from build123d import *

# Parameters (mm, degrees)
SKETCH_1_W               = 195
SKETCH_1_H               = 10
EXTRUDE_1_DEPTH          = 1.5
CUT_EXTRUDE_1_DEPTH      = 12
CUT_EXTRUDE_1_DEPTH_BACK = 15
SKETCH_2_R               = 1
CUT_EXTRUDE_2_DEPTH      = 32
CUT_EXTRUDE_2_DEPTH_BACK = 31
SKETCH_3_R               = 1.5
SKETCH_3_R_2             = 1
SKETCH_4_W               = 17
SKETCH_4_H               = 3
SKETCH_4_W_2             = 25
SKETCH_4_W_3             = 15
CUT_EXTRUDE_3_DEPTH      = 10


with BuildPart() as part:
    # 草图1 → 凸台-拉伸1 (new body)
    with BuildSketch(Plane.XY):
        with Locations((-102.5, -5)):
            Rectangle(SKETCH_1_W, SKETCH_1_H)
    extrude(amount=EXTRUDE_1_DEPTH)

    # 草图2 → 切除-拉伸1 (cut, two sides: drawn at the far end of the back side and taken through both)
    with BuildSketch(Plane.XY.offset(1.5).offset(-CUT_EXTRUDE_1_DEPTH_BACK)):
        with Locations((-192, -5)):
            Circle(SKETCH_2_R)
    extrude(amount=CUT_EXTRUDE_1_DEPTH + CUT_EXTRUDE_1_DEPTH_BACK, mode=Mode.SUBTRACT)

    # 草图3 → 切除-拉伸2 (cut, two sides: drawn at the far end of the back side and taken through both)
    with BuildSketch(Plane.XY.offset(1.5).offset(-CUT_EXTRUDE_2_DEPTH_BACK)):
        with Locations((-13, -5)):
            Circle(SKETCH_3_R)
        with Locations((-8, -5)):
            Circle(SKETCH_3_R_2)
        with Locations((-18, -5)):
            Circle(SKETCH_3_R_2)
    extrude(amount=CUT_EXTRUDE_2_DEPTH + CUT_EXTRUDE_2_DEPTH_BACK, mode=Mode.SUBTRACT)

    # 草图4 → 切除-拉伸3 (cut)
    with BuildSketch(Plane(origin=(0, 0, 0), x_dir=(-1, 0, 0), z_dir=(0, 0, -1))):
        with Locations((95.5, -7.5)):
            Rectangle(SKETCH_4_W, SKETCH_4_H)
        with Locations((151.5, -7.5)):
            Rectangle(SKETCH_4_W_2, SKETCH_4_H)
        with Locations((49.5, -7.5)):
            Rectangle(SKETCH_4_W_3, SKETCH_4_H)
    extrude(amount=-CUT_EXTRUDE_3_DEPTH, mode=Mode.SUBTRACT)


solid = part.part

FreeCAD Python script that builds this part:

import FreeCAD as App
import Part
import Sketcher

V = App.Vector
Q = App.Units.Quantity

doc = App.newDocument("Part")
body = doc.addObject("PartDesign::Body", "Body")

# Sketch on XY plane
sketch1 = doc.addObject("Sketcher::SketchObject", "Sketch")
body.addObject(sketch1)
sketch1.AttachmentSupport = (doc.XY_Plane, [""])
sketch1.MapMode = "FlatFace"
sketch1.addGeometry(Part.LineSegment(V(-200, 0, 0), V(-200, -10, 0)), False)
sketch1.addGeometry(Part.LineSegment(V(-200, -10, 0), V(-5, -10, 0)), False)
sketch1.addGeometry(Part.LineSegment(V(-5, -10, 0), V(-5, 0, 0)), False)
sketch1.addGeometry(Part.LineSegment(V(-5, 0, 0), V(-200, 0, 0)), False)
sketch1.addConstraint(Sketcher.Constraint("Coincident", 0, 2, 1, 1))
sketch1.addConstraint(Sketcher.Constraint("Coincident", 1, 2, 2, 1))
sketch1.addConstraint(Sketcher.Constraint("Coincident", 2, 2, 3, 1))
sketch1.addConstraint(Sketcher.Constraint("Coincident", 3, 2, 0, 1))
sketch1.addConstraint(Sketcher.Constraint("Vertical", 0))
sketch1.addConstraint(Sketcher.Constraint("Horizontal", 1))
sketch1.addConstraint(Sketcher.Constraint("Vertical", 2))
sketch1.addConstraint(Sketcher.Constraint("Horizontal", 3))
sketch1.addConstraint(Sketcher.Constraint("PointOnObject", 2, 2, -1))
sketch1.addConstraint(Sketcher.Constraint("DistanceX", 1, 1, 1, 2, Q("195 mm")))
sketch1.addConstraint(Sketcher.Constraint("DistanceY", 0, 2, 0, 1, Q("10 mm")))
sketch1.addConstraint(Sketcher.Constraint("DistanceX", 0, 2, -1, 1, Q("200 mm")))
pad1 = doc.addObject("PartDesign::Pad", "Pad")
body.addObject(pad1)
pad1.Profile = sketch1
pad1.Length = 1.5

# Sketch on XY plane
sketch2 = doc.addObject("Sketcher::SketchObject", "Sketch001")
body.addObject(sketch2)
sketch2.AttachmentSupport = (doc.XY_Plane, [""])
sketch2.MapMode = "FlatFace"
sketch2.AttachmentOffset = App.Placement(V(0, 0, 1.5), App.Rotation())
sketch2.addGeometry(Part.Circle(V(-192, -5, 0), V(0, 0, 1), 1), False)
sketch2.addConstraint(Sketcher.Constraint("Diameter", 0, Q("2 mm")))
sketch2.addConstraint(Sketcher.Constraint("DistanceX", 0, 3, -1, 1, Q("192 mm")))
sketch2.addConstraint(Sketcher.Constraint("DistanceY", 0, 3, -1, 1, Q("5 mm")))
pocket1 = doc.addObject("PartDesign::Pocket", "Pocket")
body.addObject(pocket1)
pocket1.Profile = sketch2
pocket1.Type = "ThroughAll"
pocket1.Midplane = True

# Sketch on XY plane
sketch3 = doc.addObject("Sketcher::SketchObject", "Sketch002")
body.addObject(sketch3)
sketch3.AttachmentSupport = (doc.XY_Plane, [""])
sketch3.MapMode = "FlatFace"
sketch3.AttachmentOffset = App.Placement(V(0, 0, 1.5), App.Rotation())
sketch3.addGeometry(Part.Circle(V(-13, -5, 0), V(0, 0, 1), 1.5), False)
sketch3.addGeometry(Part.Circle(V(-8, -5, 0), V(0, 0, 1), 1), False)
sketch3.addGeometry(Part.Circle(V(-18, -5, 0), V(0, 0, 1), 1), False)
sketch3.addConstraint(Sketcher.Constraint("Equal", 1, 2))
sketch3.addConstraint(Sketcher.Constraint("Horizontal", 0, 3, 1, 3))
sketch3.addConstraint(Sketcher.Constraint("Horizontal", 1, 3, 2, 3))
sketch3.addConstraint(Sketcher.Constraint("Diameter", 0, Q("3 mm")))
sketch3.addConstraint(Sketcher.Constraint("Diameter", 1, Q("2 mm")))
sketch3.addConstraint(Sketcher.Constraint("DistanceX", 0, 3, -1, 1, Q("13 mm")))
sketch3.addConstraint(Sketcher.Constraint("DistanceY", 0, 3, -1, 1, Q("5 mm")))
sketch3.addConstraint(Sketcher.Constraint("DistanceX", 1, 3, -1, 1, Q("8 mm")))
sketch3.addConstraint(Sketcher.Constraint("DistanceX", 2, 3, -1, 1, Q("18 mm")))
pocket2 = doc.addObject("PartDesign::Pocket", "Pocket001")
body.addObject(pocket2)
pocket2.Profile = sketch3
pocket2.Type = "ThroughAll"
pocket2.Midplane = True

# Sketch on XY plane
sketch4 = doc.addObject("Sketcher::SketchObject", "Sketch003")
body.addObject(sketch4)
sketch4.AttachmentSupport = (doc.XY_Plane, [""])
sketch4.MapMode = "FlatFace"
sketch4.addGeometry(Part.LineSegment(V(-87, -6, 0), V(-87, -9, 0)), False)
sketch4.addGeometry(Part.LineSegment(V(-87, -9, 0), V(-104, -9, 0)), False)
sketch4.addGeometry(Part.LineSegment(V(-104, -9, 0), V(-104, -6, 0)), False)
sketch4.addGeometry(Part.LineSegment(V(-104, -6, 0), V(-87, -6, 0)), False)
sketch4.addGeometry(Part.LineSegment(V(-139, -6, 0), V(-139, -9, 0)), False)
sketch4.addGeometry(Part.LineSegment(V(-139, -9, 0), V(-164, -9, 0)), False)
sketch4.addGeometry(Part.LineSegment(V(-164, -9, 0), V(-164, -6, 0)), False)
sketch4.addGeometry(Part.LineSegment(V(-164, -6, 0), V(-139, -6, 0)), False)
sketch4.addGeometry(Part.LineSegment(V(-42, -6, 0), V(-42, -9, 0)), False)
sketch4.addGeometry(Part.LineSegment(V(-42, -9, 0), V(-57, -9, 0)), False)
sketch4.addGeometry(Part.LineSegment(V(-57, -9, 0), V(-57, -6, 0)), False)
sketch4.addGeometry(Part.LineSegment(V(-57, -6, 0), V(-42, -6, 0)), False)
sketch4.addConstraint(Sketcher.Constraint("Coincident", 0, 2, 1, 1))
sketch4.addConstraint(Sketcher.Constraint("Coincident", 1, 2, 2, 1))
sketch4.addConstraint(Sketcher.Constraint("Coincident", 2, 2, 3, 1))
sketch4.addConstraint(Sketcher.Constraint("Coincident", 3, 2, 0, 1))
sketch4.addConstraint(Sketcher.Constraint("Coincident", 4, 2, 5, 1))
sketch4.addConstraint(Sketcher.Constraint("Coincident", 5, 2, 6, 1))
sketch4.addConstraint(Sketcher.Constraint("Coincident", 6, 2, 7, 1))
sketch4.addConstraint(Sketcher.Constraint("Coincident", 7, 2, 4, 1))
sketch4.addConstraint(Sketcher.Constraint("Coincident", 8, 2, 9, 1))
sketch4.addConstraint(Sketcher.Constraint("Coincident", 9, 2, 10, 1))
sketch4.addConstraint(Sketcher.Constraint("Coincident", 10, 2, 11, 1))
sketch4.addConstraint(Sketcher.Constraint("Coincident", 11, 2, 8, 1))
sketch4.addConstraint(Sketcher.Constraint("Vertical", 0))
sketch4.addConstraint(Sketcher.Constraint("Horizontal", 1))
sketch4.addConstraint(Sketcher.Constraint("Vertical", 2))
sketch4.addConstraint(Sketcher.Constraint("Horizontal", 3))
sketch4.addConstraint(Sketcher.Constraint("Vertical", 4))
sketch4.addConstraint(Sketcher.Constraint("Horizontal", 5))
sketch4.addConstraint(Sketcher.Constraint("Vertical", 6))
sketch4.addConstraint(Sketcher.Constraint("Horizontal", 7))
sketch4.addConstraint(Sketcher.Constraint("Vertical", 8))
sketch4.addConstraint(Sketcher.Constraint("Horizontal", 9))
sketch4.addConstraint(Sketcher.Constraint("Vertical", 10))
sketch4.addConstraint(Sketcher.Constraint("Horizontal", 11))
sketch4.addConstraint(Sketcher.Constraint("Horizontal", 1, 2, 4, 2))
sketch4.addConstraint(Sketcher.Constraint("Horizontal", 3, 2, 6, 2))
sketch4.addConstraint(Sketcher.Constraint("Horizontal", 5, 2, 8, 2))
sketch4.addConstraint(Sketcher.Constraint("Horizontal", 7, 2, 10, 2))
sketch4.addConstraint(Sketcher.Constraint("DistanceX", 1, 2, 1, 1, Q("17 mm")))
sketch4.addConstraint(Sketcher.Constraint("DistanceX", 5, 2, 5, 1, Q("25 mm")))
sketch4.addConstraint(Sketcher.Constraint("DistanceX", 9, 2, 9, 1, Q("15 mm")))
sketch4.addConstraint(Sketcher.Constraint("DistanceY", 0, 2, 0, 1, Q("3 mm")))
sketch4.addConstraint(Sketcher.Constraint("DistanceX", 0, 2, -1, 1, Q("87 mm")))
sketch4.addConstraint(Sketcher.Constraint("DistanceY", 0, 2, -1, 1, Q("9 mm")))
sketch4.addConstraint(Sketcher.Constraint("DistanceX", 4, 2, -1, 1, Q("139 mm")))
sketch4.addConstraint(Sketcher.Constraint("DistanceX", 8, 2, -1, 1, Q("42 mm")))
pocket3 = doc.addObject("PartDesign::Pocket", "Pocket002")
body.addObject(pocket3)
pocket3.Profile = sketch4
pocket3.Length = 10
pocket3.Reversed = True

doc.recompute()
